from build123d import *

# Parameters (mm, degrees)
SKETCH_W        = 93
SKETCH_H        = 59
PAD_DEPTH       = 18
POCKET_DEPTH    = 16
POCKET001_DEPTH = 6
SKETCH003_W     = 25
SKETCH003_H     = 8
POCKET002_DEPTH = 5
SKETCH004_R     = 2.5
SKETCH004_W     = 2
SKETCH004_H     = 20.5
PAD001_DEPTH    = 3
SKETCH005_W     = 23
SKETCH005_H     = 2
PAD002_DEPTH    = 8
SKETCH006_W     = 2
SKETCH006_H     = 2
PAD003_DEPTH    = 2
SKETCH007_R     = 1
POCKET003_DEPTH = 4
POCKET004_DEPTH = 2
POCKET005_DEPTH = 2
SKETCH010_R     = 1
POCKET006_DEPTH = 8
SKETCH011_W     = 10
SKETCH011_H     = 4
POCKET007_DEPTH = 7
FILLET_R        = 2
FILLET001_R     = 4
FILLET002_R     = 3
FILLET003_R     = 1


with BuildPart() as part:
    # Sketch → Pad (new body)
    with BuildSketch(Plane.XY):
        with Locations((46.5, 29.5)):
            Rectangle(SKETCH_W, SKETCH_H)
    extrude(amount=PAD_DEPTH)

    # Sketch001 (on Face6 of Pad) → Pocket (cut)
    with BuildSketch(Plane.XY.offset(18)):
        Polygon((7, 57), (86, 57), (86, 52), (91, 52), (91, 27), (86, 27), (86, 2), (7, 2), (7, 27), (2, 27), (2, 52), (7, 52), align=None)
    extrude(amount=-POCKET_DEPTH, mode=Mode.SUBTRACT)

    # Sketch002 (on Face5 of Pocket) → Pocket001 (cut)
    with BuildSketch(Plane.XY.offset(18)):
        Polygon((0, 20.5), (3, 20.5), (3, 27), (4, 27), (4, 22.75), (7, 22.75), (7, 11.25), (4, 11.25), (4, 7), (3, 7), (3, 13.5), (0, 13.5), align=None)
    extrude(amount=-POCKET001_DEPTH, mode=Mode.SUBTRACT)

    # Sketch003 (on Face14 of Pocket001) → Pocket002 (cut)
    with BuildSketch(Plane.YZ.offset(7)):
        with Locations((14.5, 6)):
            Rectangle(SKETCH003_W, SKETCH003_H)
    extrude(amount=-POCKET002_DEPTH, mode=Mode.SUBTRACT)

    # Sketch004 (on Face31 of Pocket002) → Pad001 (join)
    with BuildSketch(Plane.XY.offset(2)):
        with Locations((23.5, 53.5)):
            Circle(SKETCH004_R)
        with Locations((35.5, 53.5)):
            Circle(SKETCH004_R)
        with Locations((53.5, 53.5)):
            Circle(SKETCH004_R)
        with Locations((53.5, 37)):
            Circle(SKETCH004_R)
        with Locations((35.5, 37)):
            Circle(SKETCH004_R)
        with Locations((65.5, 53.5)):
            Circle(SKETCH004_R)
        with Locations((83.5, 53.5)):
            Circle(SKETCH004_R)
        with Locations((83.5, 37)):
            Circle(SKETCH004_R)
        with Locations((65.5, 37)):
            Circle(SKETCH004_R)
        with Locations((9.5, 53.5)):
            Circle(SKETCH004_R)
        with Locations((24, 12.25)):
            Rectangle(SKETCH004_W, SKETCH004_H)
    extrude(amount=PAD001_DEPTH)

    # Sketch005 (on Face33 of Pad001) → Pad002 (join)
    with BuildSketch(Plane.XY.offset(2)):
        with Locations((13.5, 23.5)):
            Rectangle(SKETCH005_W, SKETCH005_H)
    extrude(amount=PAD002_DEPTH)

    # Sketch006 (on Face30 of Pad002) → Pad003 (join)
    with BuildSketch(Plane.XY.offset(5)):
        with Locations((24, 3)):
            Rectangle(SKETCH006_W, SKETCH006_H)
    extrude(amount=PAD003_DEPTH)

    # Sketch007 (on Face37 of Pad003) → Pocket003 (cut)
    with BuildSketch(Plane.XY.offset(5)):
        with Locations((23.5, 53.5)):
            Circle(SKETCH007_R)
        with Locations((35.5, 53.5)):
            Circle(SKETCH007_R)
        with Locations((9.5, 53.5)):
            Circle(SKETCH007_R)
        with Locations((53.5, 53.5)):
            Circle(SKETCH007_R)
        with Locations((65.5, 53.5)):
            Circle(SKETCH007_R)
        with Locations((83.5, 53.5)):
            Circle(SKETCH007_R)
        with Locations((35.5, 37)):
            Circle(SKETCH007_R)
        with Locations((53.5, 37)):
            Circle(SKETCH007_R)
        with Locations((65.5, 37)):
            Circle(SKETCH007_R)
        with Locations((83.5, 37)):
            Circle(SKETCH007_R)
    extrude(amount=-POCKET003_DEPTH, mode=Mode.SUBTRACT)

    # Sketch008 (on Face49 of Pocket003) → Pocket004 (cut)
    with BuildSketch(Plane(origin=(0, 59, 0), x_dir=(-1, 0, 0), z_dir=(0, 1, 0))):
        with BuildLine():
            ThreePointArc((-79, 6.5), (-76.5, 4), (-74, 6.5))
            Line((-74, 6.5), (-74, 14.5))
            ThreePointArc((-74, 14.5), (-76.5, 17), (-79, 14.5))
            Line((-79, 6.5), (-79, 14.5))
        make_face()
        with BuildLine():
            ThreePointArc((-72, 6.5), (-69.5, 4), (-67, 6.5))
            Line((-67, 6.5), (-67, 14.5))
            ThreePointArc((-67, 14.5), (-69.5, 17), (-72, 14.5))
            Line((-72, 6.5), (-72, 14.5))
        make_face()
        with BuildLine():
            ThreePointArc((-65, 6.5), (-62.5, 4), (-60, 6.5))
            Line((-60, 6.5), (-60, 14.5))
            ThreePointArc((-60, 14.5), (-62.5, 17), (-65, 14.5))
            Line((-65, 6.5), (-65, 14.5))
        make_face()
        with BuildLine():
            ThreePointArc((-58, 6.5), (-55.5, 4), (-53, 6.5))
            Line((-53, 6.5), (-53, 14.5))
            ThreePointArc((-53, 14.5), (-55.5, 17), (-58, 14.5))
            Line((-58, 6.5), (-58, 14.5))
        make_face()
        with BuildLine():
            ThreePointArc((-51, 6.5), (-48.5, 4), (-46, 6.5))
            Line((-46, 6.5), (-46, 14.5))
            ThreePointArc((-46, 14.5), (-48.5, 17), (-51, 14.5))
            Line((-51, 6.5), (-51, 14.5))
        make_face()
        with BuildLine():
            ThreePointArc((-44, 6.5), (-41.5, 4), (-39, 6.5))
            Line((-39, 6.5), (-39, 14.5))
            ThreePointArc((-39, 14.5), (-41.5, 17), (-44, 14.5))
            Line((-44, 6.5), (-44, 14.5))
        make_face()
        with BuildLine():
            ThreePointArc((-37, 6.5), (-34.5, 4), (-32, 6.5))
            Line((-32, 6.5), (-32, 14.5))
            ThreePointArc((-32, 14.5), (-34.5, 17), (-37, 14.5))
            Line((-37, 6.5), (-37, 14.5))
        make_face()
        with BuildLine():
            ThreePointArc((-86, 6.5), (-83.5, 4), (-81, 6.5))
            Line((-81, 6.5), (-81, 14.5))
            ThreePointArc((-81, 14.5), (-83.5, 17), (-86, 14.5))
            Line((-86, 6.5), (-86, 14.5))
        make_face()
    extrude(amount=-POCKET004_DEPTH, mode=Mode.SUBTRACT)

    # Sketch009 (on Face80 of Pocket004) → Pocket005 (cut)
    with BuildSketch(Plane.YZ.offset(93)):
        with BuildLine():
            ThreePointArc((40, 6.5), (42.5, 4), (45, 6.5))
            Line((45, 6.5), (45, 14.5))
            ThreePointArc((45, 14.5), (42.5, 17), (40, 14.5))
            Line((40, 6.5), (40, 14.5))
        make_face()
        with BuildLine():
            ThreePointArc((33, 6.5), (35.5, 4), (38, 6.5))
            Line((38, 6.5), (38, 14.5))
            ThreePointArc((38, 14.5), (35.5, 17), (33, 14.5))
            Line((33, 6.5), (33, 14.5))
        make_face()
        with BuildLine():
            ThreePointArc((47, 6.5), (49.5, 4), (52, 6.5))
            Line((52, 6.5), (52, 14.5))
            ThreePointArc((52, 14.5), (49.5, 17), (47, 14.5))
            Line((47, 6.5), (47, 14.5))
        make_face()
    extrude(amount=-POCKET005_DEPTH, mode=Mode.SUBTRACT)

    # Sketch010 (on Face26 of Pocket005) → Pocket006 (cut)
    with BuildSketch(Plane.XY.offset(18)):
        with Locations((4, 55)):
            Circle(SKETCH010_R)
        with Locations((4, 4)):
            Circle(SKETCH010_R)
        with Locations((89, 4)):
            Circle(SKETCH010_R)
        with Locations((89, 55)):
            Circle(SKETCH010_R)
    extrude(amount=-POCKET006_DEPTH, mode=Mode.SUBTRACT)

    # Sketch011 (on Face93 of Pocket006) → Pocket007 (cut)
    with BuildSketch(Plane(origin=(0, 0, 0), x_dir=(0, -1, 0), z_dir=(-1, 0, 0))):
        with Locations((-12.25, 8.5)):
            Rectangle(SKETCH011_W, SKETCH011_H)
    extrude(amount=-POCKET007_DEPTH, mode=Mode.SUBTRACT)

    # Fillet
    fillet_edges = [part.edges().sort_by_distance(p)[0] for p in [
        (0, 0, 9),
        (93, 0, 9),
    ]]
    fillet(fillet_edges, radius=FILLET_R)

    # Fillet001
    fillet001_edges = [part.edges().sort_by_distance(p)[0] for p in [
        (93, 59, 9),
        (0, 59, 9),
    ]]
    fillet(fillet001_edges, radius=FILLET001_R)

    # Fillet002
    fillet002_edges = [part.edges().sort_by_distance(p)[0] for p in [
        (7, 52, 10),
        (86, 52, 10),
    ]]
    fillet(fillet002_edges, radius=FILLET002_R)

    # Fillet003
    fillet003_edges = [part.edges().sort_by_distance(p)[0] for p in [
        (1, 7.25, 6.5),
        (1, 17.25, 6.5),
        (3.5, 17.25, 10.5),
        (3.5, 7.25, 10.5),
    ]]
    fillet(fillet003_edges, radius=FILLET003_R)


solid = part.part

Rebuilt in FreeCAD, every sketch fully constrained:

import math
import FreeCAD as App
import Part
import Sketcher
from FreeCAD import Vector
Q = App.Units.Quantity


def edges_at(feature, points):
    """Names of the edges that pass closest to the given points."""
    edges = feature.Shape.Edges
    near = lambda p: min(range(len(edges)), key=lambda i: edges[i].distToShape(Part.Vertex(*p))[0])
    return sorted({f"Edge{near(p) + 1}" for p in points})

doc = App.newDocument("Part")
params = doc.addObject("Spreadsheet::Sheet", "Params")
for row, (alias, value) in enumerate([
    ("sketch1_width", "93 mm"),
    ("sketch1_height", "59 mm"),
    ("pad1_length", "18 mm"),
    ("sketch2_width", "79 mm"),
    ("sketch2_width2", "5 mm"),
    ("sketch2_height", "25 mm"),
    ("pocket1_length", "16 mm"),
    ("sketch3_width", "3 mm"),
    ("sketch3_width2", "1 mm"),
    ("sketch3_height", "7 mm"),
    ("sketch3_height2", "6.5 mm"),
    ("sketch3_height3", "11.5 mm"),
    ("pocket2_length", "6 mm"),
    ("sketch4_width", "25 mm"),
    ("sketch4_height", "8 mm"),
    ("pocket3_length", "5 mm"),
    ("sketch5_diameter", "5 mm"),
    ("sketch5_width", "2 mm"),
    ("sketch5_height", "20.5 mm"),
    ("pad2_length", "3 mm"),
    ("sketch6_width", "23 mm"),
    ("sketch6_height", "2 mm"),
    ("pad3_length", "8 mm"),
    ("sketch7_width", "2 mm"),
    ("pad4_length", "2 mm"),
    ("sketch8_diameter", "2 mm"),
    ("pocket4_length", "4 mm"),
    ("sketch9_radius", "2.5 mm"),
    ("sketch9_height", "8 mm"),
    ("pocket5_length", "2 mm"),
    ("sketch10_radius", "2.5 mm"),
    ("sketch10_height", "8 mm"),
    ("pocket6_length", "2 mm"),
    ("sketch11_diameter", "2 mm"),
    ("pocket7_length", "8 mm"),
    ("sketch12_width", "10 mm"),
    ("sketch12_height", "4 mm"),
    ("pocket8_length", "7 mm"),
    ("fillet_radius", "2 mm"),
    ("fillet2_radius", "4 mm"),
    ("fillet3_radius", "3 mm"),
    ("fillet4_radius", "1 mm"),
], start=1):
    params.set(f"A{row}", alias)
    params.set(f"B{row}", "=" + value)
    params.setAlias(f"B{row}", alias)

body = doc.addObject("PartDesign::Body", "Body")

# Sketch on XY plane
sketch1 = body.newObject("Sketcher::SketchObject", "Sketch")
sketch1.AttachmentSupport = (doc.getObject("XY_Plane"), [""])
sketch1.MapMode = "FlatFace"
sketch1.addGeometry([
    Part.LineSegment(Vector(0, 59, 0), Vector(0, 0, 0)),
    Part.LineSegment(Vector(0, 0, 0), Vector(93, 0, 0)),
    Part.LineSegment(Vector(93, 0, 0), Vector(93, 59, 0)),
    Part.LineSegment(Vector(93, 59, 0), Vector(0, 59, 0)),
], False)
sketch1.addConstraint([
    Sketcher.Constraint("Coincident", 0, 2, 1, 1),
    Sketcher.Constraint("Coincident", 1, 2, 2, 1),
    Sketcher.Constraint("Coincident", 2, 2, 3, 1),
    Sketcher.Constraint("Coincident", 3, 2, 0, 1),
    Sketcher.Constraint("Vertical", 0),
    Sketcher.Constraint("Horizontal", 1),
    Sketcher.Constraint("Vertical", 2),
    Sketcher.Constraint("Horizontal", 3),
    Sketcher.Constraint("Coincident", 0, 2, -1, 1),
    Sketcher.Constraint("DistanceX", 1, 1, 1, 2, Q("93 mm")),
    Sketcher.Constraint("DistanceY", 0, 2, 0, 1, Q("59 mm")),
])
sketch1.setExpression("Constraints[9]", "Params.sketch1_width")
sketch1.setExpression("Constraints[10]", "Params.sketch1_height")
pad1 = body.newObject("PartDesign::Pad", "Pad")
pad1.Profile = sketch1
pad1.setExpression("Length", "Params.pad1_length")

# Sketch on XY plane
sketch2 = body.newObject("Sketcher::SketchObject", "Sketch001")
sketch2.AttachmentSupport = (doc.getObject("XY_Plane"), [""])
sketch2.MapMode = "FlatFace"
sketch2.AttachmentOffset = App.Placement(Vector(0, 0, 18), App.Rotation())
sketch2.addGeometry([
    Part.LineSegment(Vector(86, 57, 0), Vector(7, 57, 0)),  # 0
    Part.LineSegment(Vector(7, 57, 0), Vector(7, 52, 0)),  # 1
    Part.LineSegment(Vector(7, 52, 0), Vector(2, 52, 0)),  # 2
    Part.LineSegment(Vector(2, 52, 0), Vector(2, 27, 0)),  # 3
    Part.LineSegment(Vector(2, 27, 0), Vector(7, 27, 0)),  # 4
    Part.LineSegment(Vector(7, 27, 0), Vector(7, 2, 0)),  # 5
    Part.LineSegment(Vector(7, 2, 0), Vector(86, 2, 0)),  # 6
    Part.LineSegment(Vector(86, 2, 0), Vector(86, 27, 0)),  # 7
    Part.LineSegment(Vector(86, 27, 0), Vector(91, 27, 0)),  # 8
    Part.LineSegment(Vector(91, 27, 0), Vector(91, 52, 0)),  # 9
    Part.LineSegment(Vector(91, 52, 0), Vector(86, 52, 0)),  # 10
    Part.LineSegment(Vector(86, 52, 0), Vector(86, 57, 0)),  # 11
], False)
sketch2.addConstraint([
    Sketcher.Constraint("Coincident", 0, 2, 1, 1),
    Sketcher.Constraint("Coincident", 1, 2, 2, 1),
    Sketcher.Constraint("Coincident", 2, 2, 3, 1),
    Sketcher.Constraint("Coincident", 3, 2, 4, 1),
    Sketcher.Constraint("Coincident", 4, 2, 5, 1),
    Sketcher.Constraint("Coincident", 5, 2, 6, 1),
    Sketcher.Constraint("Coincident", 6, 2, 7, 1),
    Sketcher.Constraint("Coincident", 7, 2, 8, 1),
    Sketcher.Constraint("Coincident", 8, 2, 9, 1),
    Sketcher.Constraint("Coincident", 9, 2, 10, 1),
    Sketcher.Constraint("Coincident", 10, 2, 11, 1),
    Sketcher.Constraint("Coincident", 11, 2, 0, 1),
    Sketcher.Constraint("Horizontal", 0),
    Sketcher.Constraint("Vertical", 1),
    Sketcher.Constraint("Horizontal", 2),
    Sketcher.Constraint("Vertical", 3),
    Sketcher.Constraint("Horizontal", 4),
    Sketcher.Constraint("Vertical", 5),
    Sketcher.Constraint("Horizontal", 6),
    Sketcher.Constraint("Vertical", 7),
    Sketcher.Constraint("Horizontal", 8),
    Sketcher.Constraint("Vertical", 9),
    Sketcher.Constraint("Horizontal", 10),
    Sketcher.Constraint("Vertical", 11),
    Sketcher.Constraint("Horizontal", 4, 2, 7, 2),
    Sketcher.Constraint("Horizontal", 2, 2, 9, 2),
    Sketcher.Constraint("Vertical", 1, 2, 4, 2),
    Sketcher.Constraint("Vertical", 7, 2, 10, 2),
    Sketcher.Constraint("Equal", 4, 8),
    Sketcher.Constraint("Equal", 10, 1),
    Sketcher.Constraint("Equal", 3, 5),
    Sketcher.Constraint("DistanceX", 0, 2, 0, 1, Q("79 mm")),
    Sketcher.Constraint("DistanceX", 2, 2, 2, 1, Q("5 mm")),
    Sketcher.Constraint("DistanceY", 3, 2, 3, 1, Q("25 mm")),
    Sketcher.Constraint("DistanceX", -1, 1, 0, 2, Q("7 mm")),
    Sketcher.Constraint("DistanceY", -1, 1, 0, 2, Q("57 mm")),
])
sketch2.setExpression("Constraints[31]", "Params.sketch2_width")
sketch2.setExpression("Constraints[32]", "Params.sketch2_width2")
sketch2.setExpression("Constraints[33]", "Params.sketch2_height")
pocket1 = body.newObject("PartDesign::Pocket", "Pocket")
pocket1.Profile = sketch2
pocket1.setExpression("Length", "Params.pocket1_length")

# Sketch on XY plane
sketch3 = body.newObject("Sketcher::SketchObject", "Sketch002")
sketch3.AttachmentSupport = (doc.getObject("XY_Plane"), [""])
sketch3.MapMode = "FlatFace"
sketch3.AttachmentOffset = App.Placement(Vector(0, 0, 18), App.Rotation())
sketch3.addGeometry([
    Part.LineSegment(Vector(3, 20.5, 0), Vector(0, 20.5, 0)),  # 0
    Part.LineSegment(Vector(0, 20.5, 0), Vector(0, 13.5, 0)),  # 1
    Part.LineSegment(Vector(0, 13.5, 0), Vector(3, 13.5, 0)),  # 2
    Part.LineSegment(Vector(3, 13.5, 0), Vector(3, 7, 0)),  # 3
    Part.LineSegment(Vector(3, 7, 0), Vector(4, 7, 0)),  # 4
    Part.LineSegment(Vector(4, 7, 0), Vector(4, 11.2, 0)),  # 5
    Part.LineSegment(Vector(4, 11.2, 0), Vector(7, 11.2, 0)),  # 6
    Part.LineSegment(Vector(7, 11.2, 0), Vector(7, 22.8, 0)),  # 7
    Part.LineSegment(Vector(7, 22.8, 0), Vector(4, 22.8, 0)),  # 8
    Part.LineSegment(Vector(4, 22.8, 0), Vector(4, 27, 0)),  # 9
    Part.LineSegment(Vector(4, 27, 0), Vector(3, 27, 0)),  # 10
    Part.LineSegment(Vector(3, 27, 0), Vector(3, 20.5, 0)),  # 11
], False)
sketch3.addConstraint([
    Sketcher.Constraint("Coincident", 0, 2, 1, 1),
    Sketcher.Constraint("Coincident", 1, 2, 2, 1),
    Sketcher.Constraint("Coincident", 2, 2, 3, 1),
    Sketcher.Constraint("Coincident", 3, 2, 4, 1),
    Sketcher.Constraint("Coincident", 4, 2, 5, 1),
    Sketcher.Constraint("Coincident", 5, 2, 6, 1),
    Sketcher.Constraint("Coincident", 6, 2, 7, 1),
    Sketcher.Constraint("Coincident", 7, 2, 8, 1),
    Sketcher.Constraint("Coincident", 8, 2, 9, 1),
    Sketcher.Constraint("Coincident", 9, 2, 10, 1),
    Sketcher.Constraint("Coincident", 10, 2, 11, 1),
    Sketcher.Constraint("Coincident", 11, 2, 0, 1),
    Sketcher.Constraint("Horizontal", 0),
    Sketcher.Constraint("Vertical", 1),
    Sketcher.Constraint("Horizontal", 2),
    Sketcher.Constraint("Vertical", 3),
    Sketcher.Constraint("Horizontal", 4),
    Sketcher.Constraint("Vertical", 5),
    Sketcher.Constraint("Horizontal", 6),
    Sketcher.Constraint("Vertical", 7),
    Sketcher.Constraint("Horizontal", 8),
    Sketcher.Constraint("Vertical", 9),
    Sketcher.Constraint("Horizontal", 10),
    Sketcher.Constraint("Vertical", 11),
    Sketcher.Constraint("PointOnObject", 0, 2, -2),
    Sketcher.Constraint("Vertical", 5, 2, 8, 2),
    Sketcher.Constraint("Vertical", 3, 2, 10, 2),
    Sketcher.Constraint("Equal", 2, 6),
    Sketcher.Constraint("Equal", 5, 9),
    Sketcher.Constraint("Equal", 3, 11),
    Sketcher.Constraint("DistanceX", 0, 2, 0, 1, Q("3 mm")),
    Sketcher.Constraint("DistanceX", 4, 1, 4, 2, Q("1 mm")),
    Sketcher.Constraint("DistanceY", 1, 2, 1, 1, Q("7 mm")),
    Sketcher.Constraint("DistanceY", 3, 2, 3, 1, Q("6.5 mm")),
    Sketcher.Constraint("DistanceY", 7, 1, 7, 2, Q("11.5 mm")),
    Sketcher.Constraint("DistanceY", -1, 1, 3, 2, Q("7 mm")),
])
sketch3.setExpression("Constraints[30]", "Params.sketch3_width")
sketch3.setExpression("Constraints[31]", "Params.sketch3_width2")
sketch3.setExpression("Constraints[32]", "Params.sketch3_height")
sketch3.setExpression("Constraints[33]", "Params.sketch3_height2")
sketch3.setExpression("Constraints[34]", "Params.sketch3_height3")
pocket2 = body.newObject("PartDesign::Pocket", "Pocket001")
pocket2.Profile = sketch3
pocket2.setExpression("Length", "Params.pocket2_length")

# Sketch on YZ plane
sketch4 = body.newObject("Sketcher::SketchObject", "Sketch003")
sketch4.AttachmentSupport = (doc.getObject("YZ_Plane"), [""])
sketch4.MapMode = "FlatFace"
sketch4.AttachmentOffset = App.Placement(Vector(0, 0, 7), App.Rotation())
sketch4.addGeometry([
    Part.LineSegment(Vector(2, 10, 0), Vector(2, 2, 0)),
    Part.LineSegment(Vector(2, 2, 0), Vector(27, 2, 0)),
    Part.LineSegment(Vector(27, 2, 0), Vector(27, 10, 0)),
    Part.LineSegment(Vector(27, 10, 0), Vector(2, 10, 0)),
], False)
sketch4.addConstraint([
    Sketcher.Constraint("Coincident", 0, 2, 1, 1),
    Sketcher.Constraint("Coincident", 1, 2, 2, 1),
    Sketcher.Constraint("Coincident", 2, 2, 3, 1),
    Sketcher.Constraint("Coincident", 3, 2, 0, 1),
    Sketcher.Constraint("Vertical", 0),
    Sketcher.Constraint("Horizontal", 1),
    Sketcher.Constraint("Vertical", 2),
    Sketcher.Constraint("Horizontal", 3),
    Sketcher.Constraint("DistanceX", 1, 1, 1, 2, Q("25 mm")),
    Sketcher.Constraint("DistanceY", 0, 2, 0, 1, Q("8 mm")),
    Sketcher.Constraint("DistanceX", -1, 1, 0, 2, Q("2 mm")),
    Sketcher.Constraint("DistanceY", -1, 1, 0, 2, Q("2 mm")),
])
sketch4.setExpression("Constraints[8]", "Params.sketch4_width")
sketch4.setExpression("Constraints[9]", "Params.sketch4_height")
pocket3 = body.newObject("PartDesign::Pocket", "Pocket002")
pocket3.Profile = sketch4
pocket3.setExpression("Length", "Params.pocket3_length")

# Sketch on XY plane
sketch5 = body.newObject("Sketcher::SketchObject", "Sketch004")
sketch5.AttachmentSupport = (doc.getObject("XY_Plane"), [""])
sketch5.MapMode = "FlatFace"
sketch5.AttachmentOffset = App.Placement(Vector(0, 0, 2), App.Rotation())
sketch5.addGeometry([
    Part.Circle(Vector(23.5, 53.5, 0), Vector(0, 0, 1), 2.5),  # 0
    Part.Circle(Vector(35.5, 53.5, 0), Vector(0, 0, 1), 2.5),  # 1
    Part.Circle(Vector(53.5, 53.5, 0), Vector(0, 0, 1), 2.5),  # 2
    Part.Circle(Vector(53.5, 37, 0), Vector(0, 0, 1), 2.5),  # 3
    Part.Circle(Vector(35.5, 37, 0), Vector(0, 0, 1), 2.5),  # 4
    Part.Circle(Vector(65.5, 53.5, 0), Vector(0, 0, 1), 2.5),  # 5
    Part.Circle(Vector(83.5, 53.5, 0), Vector(0, 0, 1), 2.5),  # 6
    Part.Circle(Vector(83.5, 37, 0), Vector(0, 0, 1), 2.5),  # 7
    Part.Circle(Vector(65.5, 37, 0), Vector(0, 0, 1), 2.5),  # 8
    Part.Circle(Vector(9.5, 53.5, 0), Vector(0, 0, 1), 2.5),  # 9
    Part.LineSegment(Vector(23, 22.5, 0), Vector(23, 2, 0)),  # 10
    Part.LineSegment(Vector(23, 2, 0), Vector(25, 2, 0)),  # 11
    Part.LineSegment(Vector(25, 2, 0), Vector(25, 22.5, 0)),  # 12
    Part.LineSegment(Vector(25, 22.5, 0), Vector(23, 22.5, 0)),  # 13
], False)
sketch5.addConstraint([
    Sketcher.Constraint("Coincident", 10, 2, 11, 1),
    Sketcher.Constraint("Coincident", 11, 2, 12, 1),
    Sketcher.Constraint("Coincident", 12, 2, 13, 1),
    Sketcher.Constraint("Coincident", 13, 2, 10, 1),
    Sketcher.Constraint("Vertical", 10),
    Sketcher.Constraint("Horizontal", 11),
    Sketcher.Constraint("Vertical", 12),
    Sketcher.Constraint("Horizontal", 13),
    Sketcher.Constraint("Equal", 0, 1),
    Sketcher.Constraint("Equal", 1, 2),
    Sketcher.Constraint("Equal", 2, 3),
    Sketcher.Constraint("Equal", 3, 4),
    Sketcher.Constraint("Equal", 4, 5),
    Sketcher.Constraint("Equal", 5, 6),
    Sketcher.Constraint("Equal", 6, 7),
    Sketcher.Constraint("Equal", 7, 8),
    Sketcher.Constraint("Equal", 8, 9),
    Sketcher.Constraint("Horizontal", 0, 3, 1, 3),
    Sketcher.Constraint("Horizontal", 1, 3, 2, 3),
    Sketcher.Constraint("Horizontal", 3, 3, 4, 3),
    Sketcher.Constraint("Horizontal", 2, 3, 5, 3),
    Sketcher.Constraint("Horizontal", 5, 3, 6, 3),
    Sketcher.Constraint("Horizontal", 4, 3, 7, 3),
    Sketcher.Constraint("Horizontal", 7, 3, 8, 3),
    Sketcher.Constraint("Horizontal", 6, 3, 9, 3),
    Sketcher.Constraint("Vertical", 2, 3, 3, 3),
    Sketcher.Constraint("Vertical", 1, 3, 4, 3),
    Sketcher.Constraint("Vertical", 6, 3, 7, 3),
    Sketcher.Constraint("Vertical", 5, 3, 8, 3),
    Sketcher.Constraint("Diameter", 0, Q("5 mm")),
    Sketcher.Constraint("DistanceX", 11, 1, 11, 2, Q("2 mm")),
    Sketcher.Constraint("DistanceY", 10, 2, 10, 1, Q("20.5 mm")),
    Sketcher.Constraint("DistanceY", -1, 1, 3, 3, Q("37 mm")),
    Sketcher.Constraint("DistanceX", -1, 1, 10, 2, Q("23 mm")),
    Sketcher.Constraint("DistanceY", -1, 1, 10, 2, Q("2 mm")),
    Sketcher.Constraint("DistanceX", 0, 3, 1, 3, Q("12 mm")),
    Sketcher.Constraint("DistanceX", 1, 3, 2, 3, Q("18 mm")),
    Sketcher.Constraint("DistanceX", 2, 3, 5, 3, Q("12 mm")),
    Sketcher.Constraint("DistanceX", 5, 3, 6, 3, Q("18 mm")),
    Sketcher.Constraint("DistanceX", 9, 3, 0, 3, Q("14 mm")),
    Sketcher.Constraint("DistanceY", 12, 2, 0, 3, Q("31 mm")),
    Sketcher.Constraint("DistanceX", -1, 1, 0, 3, Q("23.5 mm")),
])
sketch5.setExpression("Constraints[29]", "Params.sketch5_diameter")
sketch5.setExpression("Constraints[30]", "Params.sketch5_width")
sketch5.setExpression("Constraints[31]", "Params.sketch5_height")
pad2 = body.newObject("PartDesign::Pad", "Pad001")
pad2.Profile = sketch5
pad2.setExpression("Length", "Params.pad2_length")

# Sketch on XY plane
sketch6 = body.newObject("Sketcher::SketchObject", "Sketch005")
sketch6.AttachmentSupport = (doc.getObject("XY_Plane"), [""])
sketch6.MapMode = "FlatFace"
sketch6.AttachmentOffset = App.Placement(Vector(0, 0, 2), App.Rotation())
sketch6.addGeometry([
    Part.LineSegment(Vector(2, 24.5, 0), Vector(2, 22.5, 0)),
    Part.LineSegment(Vector(2, 22.5, 0), Vector(25, 22.5, 0)),
    Part.LineSegment(Vector(25, 22.5, 0), Vector(25, 24.5, 0)),
    Part.LineSegment(Vector(25, 24.5, 0), Vector(2, 24.5, 0)),
], False)
sketch6.addConstraint([
    Sketcher.Constraint("Coincident", 0, 2, 1, 1),
    Sketcher.Constraint("Coincident", 1, 2, 2, 1),
    Sketcher.Constraint("Coincident", 2, 2, 3, 1),
    Sketcher.Constraint("Coincident", 3, 2, 0, 1),
    Sketcher.Constraint("Vertical", 0),
    Sketcher.Constraint("Horizontal", 1),
    Sketcher.Constraint("Vertical", 2),
    Sketcher.Constraint("Horizontal", 3),
    Sketcher.Constraint("DistanceX", 1, 1, 1, 2, Q("23 mm")),
    Sketcher.Constraint("DistanceY", 0, 2, 0, 1, Q("2 mm")),
    Sketcher.Constraint("DistanceX", -1, 1, 0, 2, Q("2 mm")),
    Sketcher.Constraint("DistanceY", -1, 1, 0, 2, Q("22.5 mm")),
])
sketch6.setExpression("Constraints[8]", "Params.sketch6_width")
sketch6.setExpression("Constraints[9]", "Params.sketch6_height")
pad3 = body.newObject("PartDesign::Pad", "Pad002")
pad3.Profile = sketch6
pad3.setExpression("Length", "Params.pad3_length")

# Sketch on XY plane
sketch7 = body.newObject("Sketcher::SketchObject", "Sketch006")
sketch7.AttachmentSupport = (doc.getObject("XY_Plane"), [""])
sketch7.MapMode = "FlatFace"
sketch7.AttachmentOffset = App.Placement(Vector(0, 0, 5), App.Rotation())
sketch7.addGeometry([
    Part.LineSegment(Vector(23, 4, 0), Vector(23, 2, 0)),
    Part.LineSegment(Vector(23, 2, 0), Vector(25, 2, 0)),
    Part.LineSegment(Vector(25, 2, 0), Vector(25, 4, 0)),
    Part.LineSegment(Vector(25, 4, 0), Vector(23, 4, 0)),
], False)
sketch7.addConstraint([
    Sketcher.Constraint("Coincident", 0, 2, 1, 1),
    Sketcher.Constraint("Coincident", 1, 2, 2, 1),
    Sketcher.Constraint("Coincident", 2, 2, 3, 1),
    Sketcher.Constraint("Coincident", 3, 2, 0, 1),
    Sketcher.Constraint("Vertical", 0),
    Sketcher.Constraint("Horizontal", 1),
    Sketcher.Constraint("Vertical", 2),
    Sketcher.Constraint("Horizontal", 3),
    Sketcher.Constraint("Equal", 3, 0),
    Sketcher.Constraint("DistanceX", 1, 1, 1, 2, Q("2 mm")),
    Sketcher.Constraint("DistanceX", -1, 1, 0, 2, Q("23 mm")),
    Sketcher.Constraint("DistanceY", -1, 1, 0, 2, Q("2 mm")),
])
sketch7.setExpression("Constraints[9]", "Params.sketch7_width")
pad4 = body.newObject("PartDesign::Pad", "Pad003")
pad4.Profile = sketch7
pad4.setExpression("Length", "Params.pad4_length")

# Sketch on XY plane
sketch8 = body.newObject("Sketcher::SketchObject", "Sketch007")
sketch8.AttachmentSupport = (doc.getObject("XY_Plane"), [""])
sketch8.MapMode = "FlatFace"
sketch8.AttachmentOffset = App.Placement(Vector(0, 0, 5), App.Rotation())
sketch8.addGeometry([
    Part.Circle(Vector(23.5, 53.5, 0), Vector(0, 0, 1), 1),  # 0
    Part.Circle(Vector(35.5, 53.5, 0), Vector(0, 0, 1), 1),  # 1
    Part.Circle(Vector(9.5, 53.5, 0), Vector(0, 0, 1), 1),  # 2
    Part.Circle(Vector(53.5, 53.5, 0), Vector(0, 0, 1), 1),  # 3
    Part.Circle(Vector(65.5, 53.5, 0), Vector(0, 0, 1), 1),  # 4
    Part.Circle(Vector(83.5, 53.5, 0), Vector(0, 0, 1), 1),  # 5
    Part.Circle(Vector(35.5, 37, 0), Vector(0, 0, 1), 1),  # 6
    Part.Circle(Vector(53.5, 37, 0), Vector(0, 0, 1), 1),  # 7
    Part.Circle(Vector(65.5, 37, 0), Vector(0, 0, 1), 1),  # 8
    Part.Circle(Vector(83.5, 37, 0), Vector(0, 0, 1), 1),  # 9
], False)
sketch8.addConstraint([
    Sketcher.Constraint("Equal", 0, 1),
    Sketcher.Constraint("Equal", 1, 2),
    Sketcher.Constraint("Equal", 2, 3),
    Sketcher.Constraint("Equal", 3, 4),
    Sketcher.Constraint("Equal", 4, 5),
    Sketcher.Constraint("Equal", 5, 6),
    Sketcher.Constraint("Equal", 6, 7),
    Sketcher.Constraint("Equal", 7, 8),
    Sketcher.Constraint("Equal", 8, 9),
    Sketcher.Constraint("Horizontal", 0, 3, 1, 3),
    Sketcher.Constraint("Horizontal", 1, 3, 2, 3),
    Sketcher.Constraint("Horizontal", 2, 3, 3, 3),
    Sketcher.Constraint("Horizontal", 3, 3, 4, 3),
    Sketcher.Constraint("Horizontal", 4, 3, 5, 3),
    Sketcher.Constraint("Horizontal", 6, 3, 7, 3),
    Sketcher.Constraint("Horizontal", 7, 3, 8, 3),
    Sketcher.Constraint("Horizontal", 8, 3, 9, 3),
    Sketcher.Constraint("Vertical", 1, 3, 6, 3),
    Sketcher.Constraint("Vertical", 3, 3, 7, 3),
    Sketcher.Constraint("Vertical", 4, 3, 8, 3),
    Sketcher.Constraint("Vertical", 5, 3, 9, 3),
    Sketcher.Constraint("Diameter", 0, Q("2 mm")),
    Sketcher.Constraint("DistanceY", -1, 1, 6, 3, Q("37 mm")),
    Sketcher.Constraint("DistanceX", 0, 3, 1, 3, Q("12 mm")),
    Sketcher.Constraint("DistanceX", 2, 3, 0, 3, Q("14 mm")),
    Sketcher.Constraint("DistanceX", 1, 3, 3, 3, Q("18 mm")),
    Sketcher.Constraint("DistanceX", 3, 3, 4, 3, Q("12 mm")),
    Sketcher.Constraint("DistanceX", 4, 3, 5, 3, Q("18 mm")),
    Sketcher.Constraint("DistanceX", -1, 1, 0, 3, Q("23.5 mm")),
    Sketcher.Constraint("DistanceY", -1, 1, 0, 3, Q("53.5 mm")),
])
sketch8.setExpression("Constraints[21]", "Params.sketch8_diameter")
pocket4 = body.newObject("PartDesign::Pocket", "Pocket003")
pocket4.Profile = sketch8
pocket4.setExpression("Length", "Params.pocket4_length")

# Sketch on XZ plane
sketch9 = body.newObject("Sketcher::SketchObject", "Sketch008")
sketch9.AttachmentSupport = (doc.getObject("XZ_Plane"), [""])
sketch9.MapMode = "FlatFace"
sketch9.AttachmentOffset = App.Placement(Vector(0, 0, -59), App.Rotation())
sketch9.addGeometry([
    Part.ArcOfCircle(Part.Circle(Vector(76.5, 6.5, 0), Vector(0, 0, 1), 2.5), math.radians(180), math.radians(360)),  # 0
    Part.LineSegment(Vector(74, 6.5, 0), Vector(74, 14.5, 0)),  # 1
    Part.ArcOfCircle(Part.Circle(Vector(76.5, 14.5, 0), Vector(0, 0, 1), 2.5), math.radians(0), math.radians(180)),  # 2
    Part.LineSegment(Vector(79, 14.5, 0), Vector(79, 6.5, 0)),  # 3
    Part.ArcOfCircle(Part.Circle(Vector(69.5, 6.5, 0), Vector(0, 0, 1), 2.5), math.radians(180), math.radians(360)),  # 4
    Part.LineSegment(Vector(67, 6.5, 0), Vector(67, 14.5, 0)),  # 5
    Part.ArcOfCircle(Part.Circle(Vector(69.5, 14.5, 0), Vector(0, 0, 1), 2.5), math.radians(0), math.radians(180)),  # 6
    Part.LineSegment(Vector(72, 14.5, 0), Vector(72, 6.5, 0)),  # 7
    Part.ArcOfCircle(Part.Circle(Vector(62.5, 6.5, 0), Vector(0, 0, 1), 2.5), math.radians(180), math.radians(360)),  # 8
    Part.LineSegment(Vector(60, 6.5, 0), Vector(60, 14.5, 0)),  # 9
    Part.ArcOfCircle(Part.Circle(Vector(62.5, 14.5, 0), Vector(0, 0, 1), 2.5), math.radians(0), math.radians(180)),  # 10
    Part.LineSegment(Vector(65, 14.5, 0), Vector(65, 6.5, 0)),  # 11
    Part.ArcOfCircle(Part.Circle(Vector(55.5, 6.5, 0), Vector(0, 0, 1), 2.5), math.radians(180), math.radians(360)),  # 12
    Part.LineSegment(Vector(53, 6.5, 0), Vector(53, 14.5, 0)),  # 13
    Part.ArcOfCircle(Part.Circle(Vector(55.5, 14.5, 0), Vector(0, 0, 1), 2.5), math.radians(0), math.radians(180)),  # 14
    Part.LineSegment(Vector(58, 14.5, 0), Vector(58, 6.5, 0)),  # 15
    Part.ArcOfCircle(Part.Circle(Vector(48.5, 6.5, 0), Vector(0, 0, 1), 2.5), math.radians(180), math.radians(360)),  # 16
    Part.LineSegment(Vector(46, 6.5, 0), Vector(46, 14.5, 0)),  # 17
    Part.ArcOfCircle(Part.Circle(Vector(48.5, 14.5, 0), Vector(0, 0, 1), 2.5), math.radians(0), math.radians(180)),  # 18
    Part.LineSegment(Vector(51, 14.5, 0), Vector(51, 6.5, 0)),  # 19
    Part.ArcOfCircle(Part.Circle(Vector(41.5, 6.5, 0), Vector(0, 0, 1), 2.5), math.radians(180), math.radians(360)),  # 20
    Part.LineSegment(Vector(39, 6.5, 0), Vector(39, 14.5, 0)),  # 21
    Part.ArcOfCircle(Part.Circle(Vector(41.5, 14.5, 0), Vector(0, 0, 1), 2.5), math.radians(0), math.radians(180)),  # 22
    Part.LineSegment(Vector(44, 14.5, 0), Vector(44, 6.5, 0)),  # 23
    Part.ArcOfCircle(Part.Circle(Vector(34.5, 6.5, 0), Vector(0, 0, 1), 2.5), math.radians(180), math.radians(360)),  # 24
    Part.LineSegment(Vector(32, 6.5, 0), Vector(32, 14.5, 0)),  # 25
    Part.ArcOfCircle(Part.Circle(Vector(34.5, 14.5, 0), Vector(0, 0, 1), 2.5), math.radians(0), math.radians(180)),  # 26
    Part.LineSegment(Vector(37, 14.5, 0), Vector(37, 6.5, 0)),  # 27
    Part.ArcOfCircle(Part.Circle(Vector(83.5, 6.5, 0), Vector(0, 0, 1), 2.5), math.radians(180), math.radians(360)),  # 28
    Part.LineSegment(Vector(81, 6.5, 0), Vector(81, 14.5, 0)),  # 29
    Part.ArcOfCircle(Part.Circle(Vector(83.5, 14.5, 0), Vector(0, 0, 1), 2.5), math.radians(0), math.radians(180)),  # 30
    Part.LineSegment(Vector(86, 14.5, 0), Vector(86, 6.5, 0)),  # 31
], False)
sketch9.addConstraint([
    Sketcher.Constraint("Tangent", 0, 1, 1, 1),
    Sketcher.Constraint("Tangent", 1, 2, 2, 2),
    Sketcher.Constraint("Tangent", 2, 1, 3, 1),
    Sketcher.Constraint("Tangent", 3, 2, 0, 2),
    Sketcher.Constraint("Tangent", 4, 1, 5, 1),
    Sketcher.Constraint("Tangent", 5, 2, 6, 2),
    Sketcher.Constraint("Tangent", 6, 1, 7, 1),
    Sketcher.Constraint("Tangent", 7, 2, 4, 2),
    Sketcher.Constraint("Tangent", 8, 1, 9, 1),
    Sketcher.Constraint("Tangent", 9, 2, 10, 2),
    Sketcher.Constraint("Tangent", 10, 1, 11, 1),
    Sketcher.Constraint("Tangent", 11, 2, 8, 2),
    Sketcher.Constraint("Tangent", 12, 1, 13, 1),
    Sketcher.Constraint("Tangent", 13, 2, 14, 2),
    Sketcher.Constraint("Tangent", 14, 1, 15, 1),
    Sketcher.Constraint("Tangent", 15, 2, 12, 2),
    Sketcher.Constraint("Tangent", 16, 1, 17, 1),
    Sketcher.Constraint("Tangent", 17, 2, 18, 2),
    Sketcher.Constraint("Tangent", 18, 1, 19, 1),
    Sketcher.Constraint("Tangent", 19, 2, 16, 2),
    Sketcher.Constraint("Tangent", 20, 1, 21, 1),
    Sketcher.Constraint("Tangent", 21, 2, 22, 2),
    Sketcher.Constraint("Tangent", 22, 1, 23, 1),
    Sketcher.Constraint("Tangent", 23, 2, 20, 2),
    Sketcher.Constraint("Tangent", 24, 1, 25, 1),
    Sketcher.Constraint("Tangent", 25, 2, 26, 2),
    Sketcher.Constraint("Tangent", 26, 1, 27, 1),
    Sketcher.Constraint("Tangent", 27, 2, 24, 2),
    Sketcher.Constraint("Tangent", 28, 1, 29, 1),
    Sketcher.Constraint("Tangent", 29, 2, 30, 2),
    Sketcher.Constraint("Tangent", 30, 1, 31, 1),
    Sketcher.Constraint("Tangent", 31, 2, 28, 2),
    Sketcher.Constraint("Vertical", 1),
    Sketcher.Constraint("Vertical", 3),
    Sketcher.Constraint("Vertical", 5),
    Sketcher.Constraint("Vertical", 7),
    Sketcher.Constraint("Vertical", 9),
    Sketcher.Constraint("Vertical", 11),
    Sketcher.Constraint("Vertical", 13),
    Sketcher.Constraint("Vertical", 15),
    Sketcher.Constraint("Vertical", 17),
    Sketcher.Constraint("Vertical", 19),
    Sketcher.Constraint("Vertical", 21),
    Sketcher.Constraint("Vertical", 23),
    Sketcher.Constraint("Vertical", 25),
    Sketcher.Constraint("Vertical", 27),
    Sketcher.Constraint("Vertical", 29),
    Sketcher.Constraint("Vertical", 31),
    Sketcher.Constraint("Equal", 2, 4),
    Sketcher.Constraint("Equal", 6, 8),
    Sketcher.Constraint("Equal", 10, 12),
    Sketcher.Constraint("Equal", 14, 16),
    Sketcher.Constraint("Equal", 18, 20),
    Sketcher.Constraint("Equal", 22, 24),
    Sketcher.Constraint("Equal", 26, 28),
    Sketcher.Constraint("Horizontal", 0, 3, 4, 3),
    Sketcher.Constraint("Horizontal", 2, 3, 6, 3),
    Sketcher.Constraint("Horizontal", 4, 3, 8, 3),
    Sketcher.Constraint("Horizontal", 6, 3, 10, 3),
    Sketcher.Constraint("Horizontal", 8, 3, 12, 3),
    Sketcher.Constraint("Horizontal", 10, 3, 14, 3),
    Sketcher.Constraint("Horizontal", 12, 3, 16, 3),
    Sketcher.Constraint("Horizontal", 14, 3, 18, 3),
    Sketcher.Constraint("Horizontal", 16, 3, 20, 3),
    Sketcher.Constraint("Horizontal", 18, 3, 22, 3),
    Sketcher.Constraint("Horizontal", 20, 3, 24, 3),
    Sketcher.Constraint("Horizontal", 22, 3, 26, 3),
    Sketcher.Constraint("Horizontal", 24, 3, 28, 3),
    Sketcher.Constraint("Horizontal", 26, 3, 30, 3),
    Sketcher.Constraint("Radius", 0, Q("2.5 mm")),
    Sketcher.Constraint("DistanceY", 1, 1, 1, 2, Q("8 mm")),
    Sketcher.Constraint("DistanceX", -1, 1, 0, 1, Q("74 mm")),
    Sketcher.Constraint("DistanceX", -1, 1, 4, 1, Q("67 mm")),
    Sketcher.Constraint("DistanceX", -1, 1, 8, 1, Q("60 mm")),
    Sketcher.Constraint("DistanceX", -1, 1, 12, 1, Q("53 mm")),
    Sketcher.Constraint("DistanceX", -1, 1, 16, 1, Q("46 mm")),
    Sketcher.Constraint("DistanceX", -1, 1, 20, 1, Q("39 mm")),
    Sketcher.Constraint("DistanceX", -1, 1, 24, 1, Q("32 mm")),
    Sketcher.Constraint("DistanceX", -1, 1, 28, 1, Q("81 mm")),
    Sketcher.Constraint("DistanceY", -1, 1, 0, 3, Q("6.5 mm")),
])
sketch9.setExpression("Constraints[69]", "Params.sketch9_radius")
sketch9.setExpression("Constraints[70]", "Params.sketch9_height")
pocket5 = body.newObject("PartDesign::Pocket", "Pocket004")
pocket5.Profile = sketch9
pocket5.setExpression("Length", "Params.pocket5_length")
pocket5.Reversed = True

# Sketch on YZ plane
sketch10 = body.newObject("Sketcher::SketchObject", "Sketch009")
sketch10.AttachmentSupport = (doc.getObject("YZ_Plane"), [""])
sketch10.MapMode = "FlatFace"
sketch10.AttachmentOffset = App.Placement(Vector(0, 0, 93), App.Rotation())
sketch10.addGeometry([
    Part.ArcOfCircle(Part.Circle(Vector(42.5, 6.5, 0), Vector(0, 0, 1), 2.5), math.radians(180), math.radians(360)),  # 0
    Part.LineSegment(Vector(45, 6.5, 0), Vector(45, 14.5, 0)),  # 1
    Part.ArcOfCircle(Part.Circle(Vector(42.5, 14.5, 0), Vector(0, 0, 1), 2.5), math.radians(0), math.radians(180)),  # 2
    Part.LineSegment(Vector(40, 14.5, 0), Vector(40, 6.5, 0)),  # 3
    Part.ArcOfCircle(Part.Circle(Vector(35.5, 6.5, 0), Vector(0, 0, 1), 2.5), math.radians(180), math.radians(360)),  # 4
    Part.LineSegment(Vector(38, 6.5, 0), Vector(38, 14.5, 0)),  # 5
    Part.ArcOfCircle(Part.Circle(Vector(35.5, 14.5, 0), Vector(0, 0, 1), 2.5), math.radians(0), math.radians(180)),  # 6
    Part.LineSegment(Vector(33, 14.5, 0), Vector(33, 6.5, 0)),  # 7
    Part.ArcOfCircle(Part.Circle(Vector(49.5, 6.5, 0), Vector(0, 0, 1), 2.5), math.radians(180), math.radians(360)),  # 8
    Part.LineSegment(Vector(52, 6.5, 0), Vector(52, 14.5, 0)),  # 9
    Part.ArcOfCircle(Part.Circle(Vector(49.5, 14.5, 0), Vector(0, 0, 1), 2.5), math.radians(0), math.radians(180)),  # 10
    Part.LineSegment(Vector(47, 14.5, 0), Vector(47, 6.5, 0)),  # 11
], False)
sketch10.addConstraint([
    Sketcher.Constraint("Tangent", 0, 2, 1, 1),
    Sketcher.Constraint("Tangent", 1, 2, 2, 1),
    Sketcher.Constraint("Tangent", 2, 2, 3, 1),
    Sketcher.Constraint("Tangent", 3, 2, 0, 1),
    Sketcher.Constraint("Tangent", 4, 2, 5, 1),
    Sketcher.Constraint("Tangent", 5, 2, 6, 1),
    Sketcher.Constraint("Tangent", 6, 2, 7, 1),
    Sketcher.Constraint("Tangent", 7, 2, 4, 1),
    Sketcher.Constraint("Tangent", 8, 2, 9, 1),
    Sketcher.Constraint("Tangent", 9, 2, 10, 1),
    Sketcher.Constraint("Tangent", 10, 2, 11, 1),
    Sketcher.Constraint("Tangent", 11, 2, 8, 1),
    Sketcher.Constraint("Vertical", 1),
    Sketcher.Constraint("Vertical", 3),
    Sketcher.Constraint("Vertical", 5),
    Sketcher.Constraint("Vertical", 7),
    Sketcher.Constraint("Vertical", 9),
    Sketcher.Constraint("Vertical", 11),
    Sketcher.Constraint("Equal", 2, 4),
    Sketcher.Constraint("Equal", 6, 8),
    Sketcher.Constraint("Horizontal", 0, 3, 4, 3),
    Sketcher.Constraint("Horizontal", 2, 3, 6, 3),
    Sketcher.Constraint("Horizontal", 4, 3, 8, 3),
    Sketcher.Constraint("Horizontal", 6, 3, 10, 3),
    Sketcher.Constraint("Radius", 0, Q("2.5 mm")),
    Sketcher.Constraint("DistanceY", 1, 1, 1, 2, Q("8 mm")),
    Sketcher.Constraint("DistanceX", -1, 1, 0, 2, Q("45 mm")),
    Sketcher.Constraint("DistanceX", -1, 1, 4, 2, Q("38 mm")),
    Sketcher.Constraint("DistanceX", -1, 1, 8, 2, Q("52 mm")),
    Sketcher.Constraint("DistanceY", -1, 1, 0, 3, Q("6.5 mm")),
])
sketch10.setExpression("Constraints[24]", "Params.sketch10_radius")
sketch10.setExpression("Constraints[25]", "Params.sketch10_height")
pocket6 = body.newObject("PartDesign::Pocket", "Pocket005")
pocket6.Profile = sketch10
pocket6.setExpression("Length", "Params.pocket6_length")

# Sketch on XY plane
sketch11 = body.newObject("Sketcher::SketchObject", "Sketch010")
sketch11.AttachmentSupport = (doc.getObject("XY_Plane"), [""])
sketch11.MapMode = "FlatFace"
sketch11.AttachmentOffset = App.Placement(Vector(0, 0, 18), App.Rotation())
sketch11.addGeometry([
    Part.Circle(Vector(4, 55, 0), Vector(0, 0, 1), 1),
    Part.Circle(Vector(4, 4, 0), Vector(0, 0, 1), 1),
    Part.Circle(Vector(89, 4, 0), Vector(0, 0, 1), 1),
    Part.Circle(Vector(89, 55, 0), Vector(0, 0, 1), 1),
], False)
sketch11.addConstraint([
    Sketcher.Constraint("Equal", 0, 1),
    Sketcher.Constraint("Equal", 1, 2),
    Sketcher.Constraint("Equal", 2, 3),
    Sketcher.Constraint("Horizontal", 1, 3, 2, 3),
    Sketcher.Constraint("Horizontal", 0, 3, 3, 3),
    Sketcher.Constraint("Vertical", 0, 3, 1, 3),
    Sketcher.Constraint("Vertical", 2, 3, 3, 3),
    Sketcher.Constraint("Diameter", 0, Q("2 mm")),
    Sketcher.Constraint("DistanceX", -1, 1, 0, 3, Q("4 mm")),
    Sketcher.Constraint("DistanceY", -1, 1, 0, 3, Q("55 mm")),
    Sketcher.Constraint("DistanceY", -1, 1, 1, 3, Q("4 mm")),
    Sketcher.Constraint("DistanceX", -1, 1, 2, 3, Q("89 mm")),
])
sketch11.setExpression("Constraints[7]", "Params.sketch11_diameter")
pocket7 = body.newObject("PartDesign::Pocket", "Pocket006")
pocket7.Profile = sketch11
pocket7.setExpression("Length", "Params.pocket7_length")

# Sketch on YZ plane
sketch12 = body.newObject("Sketcher::SketchObject", "Sketch011")
sketch12.AttachmentSupport = (doc.getObject("YZ_Plane"), [""])
sketch12.MapMode = "FlatFace"
sketch12.addGeometry([
    Part.LineSegment(Vector(17.2, 10.5, 0), Vector(17.2, 6.5, 0)),
    Part.LineSegment(Vector(17.2, 6.5, 0), Vector(7.2, 6.5, 0)),
    Part.LineSegment(Vector(7.2, 6.5, 0), Vector(7.2, 10.5, 0)),
    Part.LineSegment(Vector(7.2, 10.5, 0), Vector(17.2, 10.5, 0)),
], False)
sketch12.addConstraint([
    Sketcher.Constraint("Coincident", 0, 2, 1, 1),
    Sketcher.Constraint("Coincident", 1, 2, 2, 1),
    Sketcher.Constraint("Coincident", 2, 2, 3, 1),
    Sketcher.Constraint("Coincident", 3, 2, 0, 1),
    Sketcher.Constraint("Vertical", 0),
    Sketcher.Constraint("Horizontal", 1),
    Sketcher.Constraint("Vertical", 2),
    Sketcher.Constraint("Horizontal", 3),
    Sketcher.Constraint("DistanceX", 1, 2, 1, 1, Q("10 mm")),
    Sketcher.Constraint("DistanceY", 0, 2, 0, 1, Q("4 mm")),
    Sketcher.Constraint("DistanceY", -1, 1, 0, 2, Q("6.5 mm")),
    Sketcher.Constraint("DistanceX", -1, 1, 0, 2, Q("17.25 mm")),
])
sketch12.setExpression("Constraints[8]", "Params.sketch12_width")
sketch12.setExpression("Constraints[9]", "Params.sketch12_height")
pocket8 = body.newObject("PartDesign::Pocket", "Pocket007")
pocket8.Profile = sketch12
pocket8.setExpression("Length", "Params.pocket8_length")
pocket8.Reversed = True
doc.recompute()

fillet = body.newObject("PartDesign::Fillet", "Fillet")
fillet.Base = (pocket8, edges_at(pocket8, [(0, 0, 9), (93, 0, 9)]))
fillet.setExpression("Radius", "Params.fillet_radius")
doc.recompute()

fillet2 = body.newObject("PartDesign::Fillet", "Fillet001")
fillet2.Base = (fillet, edges_at(fillet, [(93, 59, 9), (0, 59, 9)]))
fillet2.setExpression("Radius", "Params.fillet2_radius")
doc.recompute()

fillet3 = body.newObject("PartDesign::Fillet", "Fillet002")
fillet3.Base = (fillet2, edges_at(fillet2, [(7, 52, 10), (86, 52, 10)]))
fillet3.setExpression("Radius", "Params.fillet3_radius")
doc.recompute()

fillet4 = body.newObject("PartDesign::Fillet", "Fillet003")
fillet4.Base = (fillet3, edges_at(fillet3, [
    (1, 7.25, 6.5),
    (1, 17.25, 6.5),
    (3.5, 17.25, 10.5),
    (3.5, 7.25, 10.5),
]))
fillet4.setExpression("Radius", "Params.fillet4_radius")

doc.recompute()
